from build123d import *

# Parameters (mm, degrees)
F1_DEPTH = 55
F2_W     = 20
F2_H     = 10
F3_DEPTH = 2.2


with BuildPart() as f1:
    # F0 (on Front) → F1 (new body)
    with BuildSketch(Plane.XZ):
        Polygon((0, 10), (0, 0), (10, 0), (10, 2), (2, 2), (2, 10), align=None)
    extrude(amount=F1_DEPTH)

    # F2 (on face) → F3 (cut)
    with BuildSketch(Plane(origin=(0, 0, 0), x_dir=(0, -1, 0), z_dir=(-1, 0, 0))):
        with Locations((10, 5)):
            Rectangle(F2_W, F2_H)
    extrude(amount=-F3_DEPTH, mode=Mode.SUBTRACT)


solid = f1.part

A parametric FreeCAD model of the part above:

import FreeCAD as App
import Part
import Sketcher

V = App.Vector

doc = App.newDocument("Part")
body = doc.addObject("PartDesign::Body", "Body")

sketch1 = body.newObject("Sketcher::SketchObject", "Sketch")
sketch1.AttachmentSupport = (doc.getObject("XZ_Plane"), [""])
sketch1.MapMode = "FlatFace"
sketch1.addGeometry([
    Part.LineSegment(V(0, 10, 0), V(0, 0, 0)),
    Part.LineSegment(V(0, 0, 0), V(10, 0, 0)),
    Part.LineSegment(V(10, 0, 0), V(10, 2, 0)),
    Part.LineSegment(V(10, 2, 0), V(2, 2, 0)),
    Part.LineSegment(V(2, 2, 0), V(2, 10, 0)),
    Part.LineSegment(V(2, 10, 0), V(0, 10, 0)),
], False)
sketch1.addConstraint([
    Sketcher.Constraint("Coincident", 0, 2, 1, 1),
    Sketcher.Constraint("Coincident", 1, 2, 2, 1),
    Sketcher.Constraint("Coincident", 2, 2, 3, 1),
    Sketcher.Constraint("Coincident", 3, 2, 4, 1),
    Sketcher.Constraint("Coincident", 4, 2, 5, 1),
    Sketcher.Constraint("Coincident", 5, 2, 0, 1),
    Sketcher.Constraint("Vertical", 0),
    Sketcher.Constraint("Horizontal", 1),
    Sketcher.Constraint("Vertical", 2),
    Sketcher.Constraint("Horizontal", 3),
    Sketcher.Constraint("Vertical", 4),
    Sketcher.Constraint("Horizontal", 5),
    Sketcher.Constraint("Coincident", 0, 2, -1, 1),
    Sketcher.Constraint("Equal", 1, 0),
    Sketcher.Constraint("Equal", 5, 2),
    Sketcher.Constraint("DistanceX", 1, 1, 1, 2, 10.0),
    Sketcher.Constraint("DistanceX", 3, 2, 3, 1, 8.0),
])
pad1 = body.newObject("PartDesign::Pad", "Pad")
pad1.Profile = sketch1
pad1.Length = 55

sketch2 = body.newObject("Sketcher::SketchObject", "Sketch001")
sketch2.AttachmentSupport = (doc.getObject("YZ_Plane"), [""])
sketch2.MapMode = "FlatFace"
sketch2.addGeometry([
    Part.LineSegment(V(0, 10, 0), V(0, 0, 0)),
    Part.LineSegment(V(0, 0, 0), V(-20, 0, 0)),
    Part.LineSegment(V(-20, 0, 0), V(-20, 10, 0)),
    Part.LineSegment(V(-20, 10, 0), V(0, 10, 0)),
], False)
sketch2.addConstraint([
    Sketcher.Constraint("Coincident", 0, 2, 1, 1),
    Sketcher.Constraint("Coincident", 1, 2, 2, 1),
    Sketcher.Constraint("Coincident", 2, 2, 3, 1),
    Sketcher.Constraint("Coincident", 3, 2, 0, 1),
    Sketcher.Constraint("Vertical", 0),
    Sketcher.Constraint("Horizontal", 1),
    Sketcher.Constraint("Vertical", 2),
    Sketcher.Constraint("Horizontal", 3),
    Sketcher.Constraint("Coincident", 0, 2, -1, 1),
    Sketcher.Constraint("DistanceX", 1, 2, 1, 1, 20.0),
    Sketcher.Constraint("DistanceY", 0, 2, 0, 1, 10.0),
])
pocket1 = body.newObject("PartDesign::Pocket", "Pocket")
pocket1.Profile = sketch2
pocket1.Length = 2.2
pocket1.Reversed = True

doc.recompute()
